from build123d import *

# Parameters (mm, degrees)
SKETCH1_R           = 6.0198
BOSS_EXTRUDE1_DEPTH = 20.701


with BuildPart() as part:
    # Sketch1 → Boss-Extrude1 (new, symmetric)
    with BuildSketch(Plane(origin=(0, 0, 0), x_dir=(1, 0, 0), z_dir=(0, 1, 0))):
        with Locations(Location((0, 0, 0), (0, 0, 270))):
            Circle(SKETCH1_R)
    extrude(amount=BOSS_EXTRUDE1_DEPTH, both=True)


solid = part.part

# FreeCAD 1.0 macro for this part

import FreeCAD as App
import Part
import Sketcher
Q = App.Units.Quantity

doc = App.newDocument("Part")
params = doc.addObject("Spreadsheet::Sheet", "Params")
for row, (alias, value) in enumerate([
    ("sketch1_diameter", "0.474 in"),
    ("pad1_length", "1.63 in"),
], start=1):
    params.set(f"A{row}", alias)
    params.set(f"B{row}", "=" + value)
    params.setAlias(f"B{row}", alias)

body = doc.addObject("PartDesign::Body", "Body")

sketch1 = body.newObject("Sketcher::SketchObject", "Sketch")
sketch1.AttachmentSupport = (doc.getObject("XZ_Plane"), [""])
sketch1.MapMode = "FlatFace"
sketch1.addGeometry(Part.Circle(App.Vector(0, 0, 0), App.Vector(0, 0, 1), 6.0198), False)
sketch1.addConstraint([
    Sketcher.Constraint("Coincident", 0, 3, -1, 1),
    Sketcher.Constraint("Diameter", 0, Q("0.474 in")),
])
sketch1.setExpression("Constraints[1]", "Params.sketch1_diameter")
pad1 = body.newObject("PartDesign::Pad", "Pad")
pad1.Profile = sketch1
pad1.setExpression("Length", "Params.pad1_length")
pad1.Midplane = True

doc.recompute()
